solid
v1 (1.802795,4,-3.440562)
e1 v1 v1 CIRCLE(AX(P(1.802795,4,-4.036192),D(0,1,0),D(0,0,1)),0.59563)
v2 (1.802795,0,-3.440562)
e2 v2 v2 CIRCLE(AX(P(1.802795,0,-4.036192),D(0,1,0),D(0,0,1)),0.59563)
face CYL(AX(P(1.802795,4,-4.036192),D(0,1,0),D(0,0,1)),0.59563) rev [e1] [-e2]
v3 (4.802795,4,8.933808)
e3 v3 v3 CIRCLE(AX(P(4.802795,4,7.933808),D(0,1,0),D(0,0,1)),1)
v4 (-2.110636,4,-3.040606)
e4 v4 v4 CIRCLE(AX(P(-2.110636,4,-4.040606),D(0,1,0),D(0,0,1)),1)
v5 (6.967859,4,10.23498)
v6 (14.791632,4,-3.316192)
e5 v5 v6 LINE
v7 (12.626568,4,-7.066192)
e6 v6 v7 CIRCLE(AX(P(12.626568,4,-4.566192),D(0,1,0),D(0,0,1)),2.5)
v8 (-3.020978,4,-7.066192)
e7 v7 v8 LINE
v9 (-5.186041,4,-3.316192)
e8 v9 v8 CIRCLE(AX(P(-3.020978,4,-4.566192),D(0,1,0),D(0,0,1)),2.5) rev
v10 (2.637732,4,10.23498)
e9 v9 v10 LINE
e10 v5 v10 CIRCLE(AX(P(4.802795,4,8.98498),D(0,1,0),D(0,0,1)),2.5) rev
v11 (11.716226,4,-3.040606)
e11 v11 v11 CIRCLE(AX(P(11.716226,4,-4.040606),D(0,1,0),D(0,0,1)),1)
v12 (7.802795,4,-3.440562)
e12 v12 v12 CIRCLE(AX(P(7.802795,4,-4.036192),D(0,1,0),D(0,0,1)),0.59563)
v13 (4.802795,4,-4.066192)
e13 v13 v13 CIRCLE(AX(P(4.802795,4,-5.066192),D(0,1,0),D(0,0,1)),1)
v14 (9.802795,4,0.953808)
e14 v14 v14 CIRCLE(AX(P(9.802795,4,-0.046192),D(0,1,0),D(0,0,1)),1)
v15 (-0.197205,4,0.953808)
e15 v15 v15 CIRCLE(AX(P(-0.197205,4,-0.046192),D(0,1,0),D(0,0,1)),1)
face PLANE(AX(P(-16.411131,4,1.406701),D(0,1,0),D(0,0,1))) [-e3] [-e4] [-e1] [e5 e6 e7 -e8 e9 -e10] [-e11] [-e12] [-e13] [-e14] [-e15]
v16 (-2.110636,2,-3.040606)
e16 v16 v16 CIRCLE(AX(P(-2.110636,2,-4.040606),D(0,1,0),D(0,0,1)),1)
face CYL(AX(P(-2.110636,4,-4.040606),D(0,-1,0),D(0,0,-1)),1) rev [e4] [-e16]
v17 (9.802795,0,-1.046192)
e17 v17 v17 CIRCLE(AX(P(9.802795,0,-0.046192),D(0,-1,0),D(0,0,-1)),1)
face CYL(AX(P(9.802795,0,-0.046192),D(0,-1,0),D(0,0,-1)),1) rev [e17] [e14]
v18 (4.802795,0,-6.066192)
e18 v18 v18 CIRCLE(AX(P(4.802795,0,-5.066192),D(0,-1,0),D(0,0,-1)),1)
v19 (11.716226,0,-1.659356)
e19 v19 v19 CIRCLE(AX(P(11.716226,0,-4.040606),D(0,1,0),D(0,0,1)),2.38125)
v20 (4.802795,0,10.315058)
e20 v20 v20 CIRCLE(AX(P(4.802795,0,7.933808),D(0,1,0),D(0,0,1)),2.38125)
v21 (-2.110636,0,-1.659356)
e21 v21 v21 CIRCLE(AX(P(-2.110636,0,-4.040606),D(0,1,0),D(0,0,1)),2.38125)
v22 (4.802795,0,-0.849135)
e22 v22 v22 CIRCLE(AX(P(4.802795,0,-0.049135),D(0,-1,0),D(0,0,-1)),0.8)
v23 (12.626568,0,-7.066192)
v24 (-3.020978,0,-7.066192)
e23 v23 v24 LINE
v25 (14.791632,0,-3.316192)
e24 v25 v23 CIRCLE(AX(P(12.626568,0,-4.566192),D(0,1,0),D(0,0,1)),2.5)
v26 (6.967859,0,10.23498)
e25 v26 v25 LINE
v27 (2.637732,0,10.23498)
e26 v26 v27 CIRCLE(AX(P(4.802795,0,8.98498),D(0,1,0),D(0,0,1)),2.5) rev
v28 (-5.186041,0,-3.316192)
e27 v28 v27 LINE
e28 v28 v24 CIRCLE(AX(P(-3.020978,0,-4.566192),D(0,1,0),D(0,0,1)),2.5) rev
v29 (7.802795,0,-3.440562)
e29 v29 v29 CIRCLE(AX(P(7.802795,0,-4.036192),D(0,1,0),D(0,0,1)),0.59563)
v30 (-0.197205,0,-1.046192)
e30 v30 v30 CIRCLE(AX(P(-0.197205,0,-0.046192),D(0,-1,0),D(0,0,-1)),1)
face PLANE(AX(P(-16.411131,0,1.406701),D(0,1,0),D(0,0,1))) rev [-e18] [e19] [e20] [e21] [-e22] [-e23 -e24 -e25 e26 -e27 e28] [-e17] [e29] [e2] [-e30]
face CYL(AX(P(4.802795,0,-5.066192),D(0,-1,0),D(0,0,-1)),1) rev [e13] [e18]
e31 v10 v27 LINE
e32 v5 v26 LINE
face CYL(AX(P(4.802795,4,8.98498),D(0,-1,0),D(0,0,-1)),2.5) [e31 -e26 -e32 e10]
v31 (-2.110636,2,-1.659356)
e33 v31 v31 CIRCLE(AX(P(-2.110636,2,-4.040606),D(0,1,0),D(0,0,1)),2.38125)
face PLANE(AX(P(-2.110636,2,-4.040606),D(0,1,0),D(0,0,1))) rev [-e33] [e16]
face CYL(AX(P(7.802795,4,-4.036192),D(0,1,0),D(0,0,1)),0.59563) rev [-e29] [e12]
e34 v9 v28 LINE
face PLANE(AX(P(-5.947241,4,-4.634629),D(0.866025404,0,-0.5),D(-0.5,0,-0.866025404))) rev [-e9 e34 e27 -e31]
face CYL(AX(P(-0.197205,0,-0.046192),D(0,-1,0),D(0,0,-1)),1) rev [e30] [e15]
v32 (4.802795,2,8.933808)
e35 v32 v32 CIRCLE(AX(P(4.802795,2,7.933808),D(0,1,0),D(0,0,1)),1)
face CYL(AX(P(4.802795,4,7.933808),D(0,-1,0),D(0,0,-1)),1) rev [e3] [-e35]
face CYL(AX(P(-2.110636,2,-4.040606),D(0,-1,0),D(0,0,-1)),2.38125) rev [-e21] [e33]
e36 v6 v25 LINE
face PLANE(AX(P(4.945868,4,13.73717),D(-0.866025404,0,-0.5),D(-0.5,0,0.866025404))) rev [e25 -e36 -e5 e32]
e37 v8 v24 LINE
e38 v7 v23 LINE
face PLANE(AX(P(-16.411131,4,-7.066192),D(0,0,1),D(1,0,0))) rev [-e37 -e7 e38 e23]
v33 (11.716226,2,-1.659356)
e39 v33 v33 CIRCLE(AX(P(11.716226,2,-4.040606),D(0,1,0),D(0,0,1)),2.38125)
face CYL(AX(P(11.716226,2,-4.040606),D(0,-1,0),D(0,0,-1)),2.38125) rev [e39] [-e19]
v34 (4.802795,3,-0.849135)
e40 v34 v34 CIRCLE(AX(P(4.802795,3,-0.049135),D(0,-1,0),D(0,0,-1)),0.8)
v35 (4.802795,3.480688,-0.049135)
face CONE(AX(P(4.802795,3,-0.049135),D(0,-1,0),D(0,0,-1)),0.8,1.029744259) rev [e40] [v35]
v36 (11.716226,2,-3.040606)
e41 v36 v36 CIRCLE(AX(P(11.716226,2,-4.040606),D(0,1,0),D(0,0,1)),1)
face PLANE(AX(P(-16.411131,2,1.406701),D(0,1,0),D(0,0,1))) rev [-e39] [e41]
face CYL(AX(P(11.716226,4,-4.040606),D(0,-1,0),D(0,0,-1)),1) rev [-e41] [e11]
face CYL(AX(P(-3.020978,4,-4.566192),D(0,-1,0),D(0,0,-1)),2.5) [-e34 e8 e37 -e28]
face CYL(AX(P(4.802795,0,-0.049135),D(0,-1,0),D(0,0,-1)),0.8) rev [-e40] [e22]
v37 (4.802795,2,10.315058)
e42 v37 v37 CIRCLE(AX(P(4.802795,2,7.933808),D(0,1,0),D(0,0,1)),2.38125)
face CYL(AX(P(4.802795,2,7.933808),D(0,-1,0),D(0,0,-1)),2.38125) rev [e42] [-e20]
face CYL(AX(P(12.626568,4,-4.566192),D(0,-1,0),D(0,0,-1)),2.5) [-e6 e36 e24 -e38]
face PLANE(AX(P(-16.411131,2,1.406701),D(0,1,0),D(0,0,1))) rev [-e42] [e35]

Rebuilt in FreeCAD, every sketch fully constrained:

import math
import FreeCAD as App
import Part
import Sketcher
Q = App.Units.Quantity

doc = App.newDocument("Part")
body = doc.addObject("PartDesign::Body", "Body")

# Sketch on XZ plane
sketch1 = body.newObject("Sketcher::SketchObject", "Sketch")
sketch1.AttachmentSupport = (doc.getObject("XZ_Plane"), [""])
sketch1.MapMode = "FlatFace"
sketch1.addGeometry([
    Part.LineSegment(App.Vector(-5.2, -3.3, 0), App.Vector(2.6, 10.2, 0)),  # 0
    Part.ArcOfCircle(Part.Circle(App.Vector(4.8, 9, 0), App.Vector(0, 0, 1), 2.5), math.radians(30), math.radians(150)),  # 1
    Part.LineSegment(App.Vector(7, 10.2, 0), App.Vector(14.8, -3.3, 0)),  # 2
    Part.ArcOfCircle(Part.Circle(App.Vector(12.6, -4.6, 0), App.Vector(0, 0, 1), 2.5), math.radians(-90), math.radians(30)),  # 3
    Part.LineSegment(App.Vector(12.6, -7.1, 0), App.Vector(-3, -7.1, 0)),  # 4
    Part.ArcOfCircle(Part.Circle(App.Vector(-3, -4.6, 0), App.Vector(0, 0, 1), 2.5), math.radians(150), math.radians(270)),  # 5
    Part.Circle(App.Vector(4.8, 7.9, 0), App.Vector(0, 0, 1), 1),  # 6
    Part.Circle(App.Vector(-2.1, -4, 0), App.Vector(0, 0, 1), 1),  # 7
    Part.Circle(App.Vector(11.7, -4, 0), App.Vector(0, 0, 1), 1),  # 8
], False)
sketch1.addConstraint([
    Sketcher.Constraint("Tangent", 0, 2, 1, 2),
    Sketcher.Constraint("Tangent", 1, 1, 2, 1),
    Sketcher.Constraint("Tangent", 2, 2, 3, 2),
    Sketcher.Constraint("Tangent", 3, 1, 4, 1),
    Sketcher.Constraint("Tangent", 4, 2, 5, 2),
    Sketcher.Constraint("Tangent", 5, 1, 0, 1),
    Sketcher.Constraint("Horizontal", 4),
    Sketcher.Constraint("Equal", 1, 3),
    Sketcher.Constraint("Equal", 3, 5),
    Sketcher.Constraint("Equal", 6, 7),
    Sketcher.Constraint("Equal", 7, 8),
    Sketcher.Constraint("Horizontal", 7, 3, 8, 3),
    Sketcher.Constraint("Horizontal", 0, 2, 1, 1),
    Sketcher.Constraint("Vertical", 1, 3, 6, 3),
    Sketcher.Constraint("Diameter", 6, Q("2 mm")),
    Sketcher.Constraint("Radius", 1, Q("2.5 mm")),
    Sketcher.Constraint("Angle", 0, Q("60 deg")),
    Sketcher.Constraint("DistanceY", 5, 3, 6, 3, Q("12.5 mm")),
    Sketcher.Constraint("DistanceX", 4, 2, 4, 1, Q("15.647546 mm")),
    Sketcher.Constraint("DistanceY", -1, 1, 1, 3, Q("8.98498 mm")),
    Sketcher.Constraint("DistanceX", -1, 1, 3, 3, Q("12.626568 mm")),
    Sketcher.Constraint("DistanceX", 5, 3, 7, 3, Q("0.910342 mm")),
    Sketcher.Constraint("DistanceX", 8, 3, 3, 3, Q("0.910342 mm")),
    Sketcher.Constraint("DistanceY", 7, 3, -1, 1, Q("4.040606 mm")),
])
pad1 = body.newObject("PartDesign::Pad", "Pad")
pad1.Profile = sketch1
pad1.Length = 4
pad1.Reversed = True

# Sketch on XZ plane
sketch2 = body.newObject("Sketcher::SketchObject", "Sketch001")
sketch2.AttachmentSupport = (doc.getObject("XZ_Plane"), [""])
sketch2.MapMode = "FlatFace"
sketch2.addGeometry([
    Part.Circle(App.Vector(4.8, 7.9, 0), App.Vector(0, 0, 1), 2.4),
    Part.Circle(App.Vector(11.7, -4, 0), App.Vector(0, 0, 1), 2.4),
    Part.Circle(App.Vector(-2.1, -4, 0), App.Vector(0, 0, 1), 2.4),
], False)
sketch2.addConstraint([
    Sketcher.Constraint("Equal", 0, 1),
    Sketcher.Constraint("Equal", 1, 2),
    Sketcher.Constraint("Horizontal", 1, 3, 2, 3),
    Sketcher.Constraint("Diameter", 0, Q("4.7625 mm")),
    Sketcher.Constraint("DistanceX", 0, 3, 1, 3, Q("6.913431 mm")),
    Sketcher.Constraint("DistanceX", 2, 3, 0, 3, Q("6.913431 mm")),
    Sketcher.Constraint("DistanceX", -1, 1, 0, 3, Q("4.802795 mm")),
    Sketcher.Constraint("DistanceY", -1, 1, 0, 3, Q("7.933808 mm")),
    Sketcher.Constraint("DistanceY", 1, 3, -1, 1, Q("4.040606 mm")),
])
pocket1 = body.newObject("PartDesign::Pocket", "Pocket")
pocket1.Profile = sketch2
pocket1.Length = 2

# Sketch on XZ plane
sketch3 = body.newObject("Sketcher::SketchObject", "Sketch002")
sketch3.AttachmentSupport = (doc.getObject("XZ_Plane"), [""])
sketch3.MapMode = "FlatFace"
sketch3.addGeometry(Part.Circle(App.Vector(4.8, 0, 0), App.Vector(0, 0, 1), 0.8), False)
sketch3.addConstraint([
    Sketcher.Constraint("Diameter", 0, Q("1.6 mm")),
    Sketcher.Constraint("DistanceX", -1, 1, 0, 3, Q("4.802795 mm")),
    Sketcher.Constraint("DistanceY", 0, 3, -1, 1, Q("0.049135 mm")),
])
doc.recompute()
hole = body.newObject("PartDesign::Hole", "Hole")
hole.Profile = sketch3
hole.ThreadType = "None"
hole.Diameter = 1.6
hole.DepthType = "Dimension"
hole.Depth = 3
hole.DrillPoint = "Angled"
hole.DrillPointAngle = 118

# Sketch on XZ plane
sketch4 = body.newObject("Sketcher::SketchObject", "Sketch003")
sketch4.AttachmentSupport = (doc.getObject("XZ_Plane"), [""])
sketch4.MapMode = "FlatFace"
sketch4.addGeometry([
    Part.Circle(App.Vector(4.8, -5.1, 0), App.Vector(0, 0, 1), 1),
    Part.Circle(App.Vector(9.8, 0, 0), App.Vector(0, 0, 1), 1),
    Part.Circle(App.Vector(-0.2, 0, 0), App.Vector(0, 0, 1), 1),
], False)
sketch4.addConstraint([
    Sketcher.Constraint("Equal", 0, 1),
    Sketcher.Constraint("Equal", 1, 2),
    Sketcher.Constraint("Horizontal", 1, 3, 2, 3),
    Sketcher.Constraint("Diameter", 0, Q("2 mm")),
    Sketcher.Constraint("DistanceX", 0, 3, 1, 3, Q("5 mm")),
    Sketcher.Constraint("DistanceX", 2, 3, 0, 3, Q("5 mm")),
    Sketcher.Constraint("DistanceY", 0, 3, 1, 3, Q("5.02 mm")),
    Sketcher.Constraint("DistanceX", -1, 1, 0, 3, Q("4.802795 mm")),
    Sketcher.Constraint("DistanceY", 0, 3, -1, 1, Q("5.066192 mm")),
])
doc.recompute()
hole2 = body.newObject("PartDesign::Hole", "Hole001")
hole2.Profile = sketch4
hole2.ThreadType = "None"
hole2.Diameter = 2
hole2.DepthType = "Dimension"
hole2.Depth = 10
hole2.DrillPoint = "Angled"
hole2.DrillPointAngle = 118

# Sketch on XZ plane
sketch5 = body.newObject("Sketcher::SketchObject", "Sketch004")
sketch5.AttachmentSupport = (doc.getObject("XZ_Plane"), [""])
sketch5.MapMode = "FlatFace"
sketch5.AttachmentOffset = App.Placement(App.Vector(0, 0, -4), App.Rotation())
sketch5.addGeometry([
    Part.Circle(App.Vector(1.8, -4, 0), App.Vector(0, 0, 1), 0.6),
    Part.Circle(App.Vector(7.8, -4, 0), App.Vector(0, 0, 1), 0.6),
], False)
sketch5.addConstraint([
    Sketcher.Constraint("Equal", 0, 1),
    Sketcher.Constraint("Horizontal", 0, 3, 1, 3),
    Sketcher.Constraint("DistanceX", 0, 3, 1, 3, Q("6 mm")),
    Sketcher.Constraint("Diameter", 0, Q("1.19126 mm")),
    Sketcher.Constraint("DistanceX", -1, 1, 0, 3, Q("1.802795 mm")),
    Sketcher.Constraint("DistanceY", 0, 3, -1, 1, Q("4.036192 mm")),
])
doc.recompute()
hole3 = body.newObject("PartDesign::Hole", "Hole002")
hole3.Profile = sketch5
hole3.ThreadType = "None"
hole3.Diameter = 1.19126
hole3.DepthType = "Dimension"
hole3.Depth = 4
hole3.DrillPoint = "Flat"
hole3.Reversed = True

doc.recompute()
